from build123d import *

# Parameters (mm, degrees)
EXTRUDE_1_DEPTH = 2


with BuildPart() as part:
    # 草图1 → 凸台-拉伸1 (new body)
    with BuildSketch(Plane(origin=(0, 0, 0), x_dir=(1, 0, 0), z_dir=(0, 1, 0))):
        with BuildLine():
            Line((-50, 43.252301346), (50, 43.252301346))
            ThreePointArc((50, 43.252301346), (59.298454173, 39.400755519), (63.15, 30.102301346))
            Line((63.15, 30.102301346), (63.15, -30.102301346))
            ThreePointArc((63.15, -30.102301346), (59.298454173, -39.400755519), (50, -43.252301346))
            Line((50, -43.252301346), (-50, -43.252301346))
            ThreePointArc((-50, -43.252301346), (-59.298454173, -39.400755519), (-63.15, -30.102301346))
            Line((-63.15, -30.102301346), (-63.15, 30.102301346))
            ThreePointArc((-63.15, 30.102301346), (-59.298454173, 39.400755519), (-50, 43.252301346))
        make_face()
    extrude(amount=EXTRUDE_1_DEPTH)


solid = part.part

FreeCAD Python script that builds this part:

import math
import FreeCAD as App
import Part
import Sketcher

V = App.Vector
Q = App.Units.Quantity

doc = App.newDocument("Part")
body = doc.addObject("PartDesign::Body", "Body")

# Sketch on XZ plane
sketch1 = body.newObject("Sketcher::SketchObject", "Sketch")
sketch1.AttachmentSupport = (doc.getObject("XZ_Plane"), [""])
sketch1.MapMode = "FlatFace"
sketch1.addGeometry(Part.LineSegment(V(50, -43.252301, 0), V(-50, -43.252301, 0)), False)
sketch1.addGeometry(Part.ArcOfCircle(Part.Circle(V(-50, -30.102301, 0), V(0, 0, 1), 13.15), math.radians(180), math.radians(270)), False)
sketch1.addGeometry(Part.LineSegment(V(-63.15, -30.102301, 0), V(-63.15, 30.102301, 0)), False)
sketch1.addGeometry(Part.ArcOfCircle(Part.Circle(V(-50, 30.102301, 0), V(0, 0, 1), 13.15), math.radians(90), math.radians(180)), False)
sketch1.addGeometry(Part.LineSegment(V(-50, 43.252301, 0), V(50, 43.252301, 0)), False)
sketch1.addGeometry(Part.ArcOfCircle(Part.Circle(V(50, 30.102301, 0), V(0, 0, 1), 13.15), math.radians(0), math.radians(90)), False)
sketch1.addGeometry(Part.LineSegment(V(63.15, 30.102301, 0), V(63.15, -30.102301, 0)), False)
sketch1.addGeometry(Part.ArcOfCircle(Part.Circle(V(50, -30.102301, 0), V(0, 0, 1), 13.15), math.radians(-90), math.radians(0)), False)
sketch1.addConstraint(Sketcher.Constraint("Tangent", 0, 2, 1, 2))
sketch1.addConstraint(Sketcher.Constraint("Tangent", 1, 1, 2, 1))
sketch1.addConstraint(Sketcher.Constraint("Tangent", 2, 2, 3, 2))
sketch1.addConstraint(Sketcher.Constraint("Tangent", 3, 1, 4, 1))
sketch1.addConstraint(Sketcher.Constraint("Tangent", 4, 2, 5, 2))
sketch1.addConstraint(Sketcher.Constraint("Tangent", 5, 1, 6, 1))
sketch1.addConstraint(Sketcher.Constraint("Tangent", 6, 2, 7, 2))
sketch1.addConstraint(Sketcher.Constraint("Tangent", 7, 1, 0, 1))
sketch1.addConstraint(Sketcher.Constraint("Horizontal", 0))
sketch1.addConstraint(Sketcher.Constraint("Vertical", 2))
sketch1.addConstraint(Sketcher.Constraint("Horizontal", 4))
sketch1.addConstraint(Sketcher.Constraint("Vertical", 6))
sketch1.addConstraint(Sketcher.Constraint("Equal", 1, 3))
sketch1.addConstraint(Sketcher.Constraint("Equal", 3, 5))
sketch1.addConstraint(Sketcher.Constraint("Equal", 5, 7))
sketch1.addConstraint(Sketcher.Constraint("Symmetric", 1, 3, 5, 3, -1, 1))
sketch1.addConstraint(Sketcher.Constraint("DistanceX", 0, 2, 0, 1, Q("100 mm")))
sketch1.addConstraint(Sketcher.Constraint("Radius", 1, Q("13.15 mm")))
sketch1.addConstraint(Sketcher.Constraint("DistanceY", 1, 3, -1, 1, Q("30.102301 mm")))
pad1 = body.newObject("PartDesign::Pad", "Pad")
pad1.Profile = sketch1
pad1.Length = 2
pad1.Reversed = True

doc.recompute()
